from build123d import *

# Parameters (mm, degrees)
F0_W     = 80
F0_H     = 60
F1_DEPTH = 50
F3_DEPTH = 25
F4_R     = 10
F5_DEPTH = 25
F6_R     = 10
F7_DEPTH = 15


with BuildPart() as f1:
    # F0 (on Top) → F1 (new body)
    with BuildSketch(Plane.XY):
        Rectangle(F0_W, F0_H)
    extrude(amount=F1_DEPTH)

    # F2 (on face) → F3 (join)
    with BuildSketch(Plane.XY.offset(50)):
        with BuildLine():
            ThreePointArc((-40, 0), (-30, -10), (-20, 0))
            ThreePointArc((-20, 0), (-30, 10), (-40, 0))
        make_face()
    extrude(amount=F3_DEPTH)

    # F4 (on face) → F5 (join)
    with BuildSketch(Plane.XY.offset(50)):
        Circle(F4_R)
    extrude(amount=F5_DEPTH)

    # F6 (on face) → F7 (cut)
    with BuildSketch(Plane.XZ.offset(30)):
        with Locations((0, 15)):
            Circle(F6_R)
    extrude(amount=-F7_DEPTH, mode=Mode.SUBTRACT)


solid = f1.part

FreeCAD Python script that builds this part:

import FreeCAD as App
import Part
import Sketcher

V = App.Vector


def add_polygon(sketch, points):
    """Adds a closed chain of lines whose ends are joined by coincident constraints."""
    first, n = sketch.GeometryCount, len(points)
    for a, b in zip(points, points[1:] + points[:1]):
        sketch.addGeometry(Part.LineSegment(App.Vector(*a, 0), App.Vector(*b, 0)), False)
    for i in range(n):
        sketch.addConstraint(Sketcher.Constraint("Coincident", first + i, 2, first + (i + 1) % n, 1))

doc = App.newDocument("Part")
body = doc.addObject("PartDesign::Body", "Body")

sketch1 = doc.addObject("Sketcher::SketchObject", "Sketch")
body.addObject(sketch1)
sketch1.AttachmentSupport = (doc.XY_Plane, [""])
sketch1.MapMode = "FlatFace"
add_polygon(sketch1, [(-40, 30), (-40, -30), (40, -30), (40, 30)])
sketch1.addConstraint(Sketcher.Constraint("Vertical", 0))
sketch1.addConstraint(Sketcher.Constraint("Horizontal", 1))
sketch1.addConstraint(Sketcher.Constraint("Vertical", 2))
sketch1.addConstraint(Sketcher.Constraint("Horizontal", 3))
sketch1.addConstraint(Sketcher.Constraint("Symmetric", 0, 2, 2, 2, -1, 1))
sketch1.addConstraint(Sketcher.Constraint("DistanceX", 1, 1, 1, 2, 80.0))
sketch1.addConstraint(Sketcher.Constraint("DistanceY", 0, 2, 0, 1, 60.0))
pad1 = doc.addObject("PartDesign::Pad", "Pad")
body.addObject(pad1)
pad1.Profile = sketch1
pad1.Length = 50

sketch2 = doc.addObject("Sketcher::SketchObject", "Sketch001")
body.addObject(sketch2)
sketch2.AttachmentSupport = (doc.XY_Plane, [""])
sketch2.MapMode = "FlatFace"
sketch2.AttachmentOffset = App.Placement(V(0, 0, 50), App.Rotation())
sketch2.addGeometry(Part.Circle(V(-30, 0, 0), V(0, 0, 1), 10), False)
sketch2.addConstraint(Sketcher.Constraint("PointOnObject", 0, 3, -1))
sketch2.addConstraint(Sketcher.Constraint("Diameter", 0, 20.0))
sketch2.addConstraint(Sketcher.Constraint("DistanceX", 0, 3, -1, 1, 30.0))
pad2 = doc.addObject("PartDesign::Pad", "Pad001")
body.addObject(pad2)
pad2.Profile = sketch2
pad2.Length = 25

sketch3 = doc.addObject("Sketcher::SketchObject", "Sketch002")
body.addObject(sketch3)
sketch3.AttachmentSupport = (doc.XY_Plane, [""])
sketch3.MapMode = "FlatFace"
sketch3.AttachmentOffset = App.Placement(V(0, 0, 50), App.Rotation())
sketch3.addGeometry(Part.Circle(V(0, 0, 0), V(0, 0, 1), 10), False)
sketch3.addConstraint(Sketcher.Constraint("Coincident", 0, 3, -1, 1))
sketch3.addConstraint(Sketcher.Constraint("Diameter", 0, 20.0))
pad3 = doc.addObject("PartDesign::Pad", "Pad002")
body.addObject(pad3)
pad3.Profile = sketch3
pad3.Length = 25

sketch4 = doc.addObject("Sketcher::SketchObject", "Sketch003")
body.addObject(sketch4)
sketch4.AttachmentSupport = (doc.XZ_Plane, [""])
sketch4.MapMode = "FlatFace"
sketch4.AttachmentOffset = App.Placement(V(0, 0, 30), App.Rotation())
sketch4.addGeometry(Part.Circle(V(0, 15, 0), V(0, 0, 1), 10), False)
sketch4.addConstraint(Sketcher.Constraint("PointOnObject", 0, 3, -2))
sketch4.addConstraint(Sketcher.Constraint("Diameter", 0, 20.0))
sketch4.addConstraint(Sketcher.Constraint("DistanceY", -1, 1, 0, 3, 15.0))
pocket1 = doc.addObject("PartDesign::Pocket", "Pocket")
body.addObject(pocket1)
pocket1.Profile = sketch4
pocket1.Length = 15

doc.recompute()
